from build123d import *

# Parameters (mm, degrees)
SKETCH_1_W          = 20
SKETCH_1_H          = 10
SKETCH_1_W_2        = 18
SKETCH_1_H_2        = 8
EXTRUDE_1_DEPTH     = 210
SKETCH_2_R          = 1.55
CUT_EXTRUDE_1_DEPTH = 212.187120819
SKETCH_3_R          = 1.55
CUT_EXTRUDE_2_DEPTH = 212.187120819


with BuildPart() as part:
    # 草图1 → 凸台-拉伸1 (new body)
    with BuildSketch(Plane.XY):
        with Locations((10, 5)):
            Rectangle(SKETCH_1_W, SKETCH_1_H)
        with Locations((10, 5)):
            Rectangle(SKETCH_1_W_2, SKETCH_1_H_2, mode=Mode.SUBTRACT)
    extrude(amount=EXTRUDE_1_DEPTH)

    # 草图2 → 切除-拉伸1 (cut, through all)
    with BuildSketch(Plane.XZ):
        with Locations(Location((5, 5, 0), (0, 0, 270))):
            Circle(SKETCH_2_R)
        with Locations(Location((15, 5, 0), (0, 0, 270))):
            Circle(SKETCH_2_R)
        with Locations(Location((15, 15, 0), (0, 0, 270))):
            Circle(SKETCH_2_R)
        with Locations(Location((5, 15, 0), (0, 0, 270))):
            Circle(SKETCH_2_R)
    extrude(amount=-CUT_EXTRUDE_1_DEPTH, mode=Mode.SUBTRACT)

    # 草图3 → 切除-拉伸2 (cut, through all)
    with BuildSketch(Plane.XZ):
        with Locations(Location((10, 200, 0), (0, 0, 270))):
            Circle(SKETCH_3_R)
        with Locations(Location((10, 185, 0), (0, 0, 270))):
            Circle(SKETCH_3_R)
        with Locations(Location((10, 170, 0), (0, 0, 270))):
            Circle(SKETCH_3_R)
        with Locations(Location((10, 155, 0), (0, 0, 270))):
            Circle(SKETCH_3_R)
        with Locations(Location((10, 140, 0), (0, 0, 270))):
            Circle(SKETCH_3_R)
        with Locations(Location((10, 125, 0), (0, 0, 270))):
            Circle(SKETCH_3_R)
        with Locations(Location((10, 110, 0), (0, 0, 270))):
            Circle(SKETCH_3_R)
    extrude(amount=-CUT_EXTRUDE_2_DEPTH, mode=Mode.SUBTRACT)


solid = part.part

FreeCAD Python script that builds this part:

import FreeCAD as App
import Part
import Sketcher

doc = App.newDocument("Part")
body = doc.addObject("PartDesign::Body", "Body")

# Sketch on XY plane
sketch1 = doc.addObject("Sketcher::SketchObject", "Sketch")
body.addObject(sketch1)
sketch1.AttachmentSupport = (doc.XY_Plane, [""])
sketch1.MapMode = "FlatFace"
sketch1.addGeometry(Part.LineSegment(App.Vector(0, 10, 0), App.Vector(0, 0, 0)), False)
sketch1.addGeometry(Part.LineSegment(App.Vector(0, 0, 0), App.Vector(20, 0, 0)), False)
sketch1.addGeometry(Part.LineSegment(App.Vector(20, 0, 0), App.Vector(20, 10, 0)), False)
sketch1.addGeometry(Part.LineSegment(App.Vector(20, 10, 0), App.Vector(0, 10, 0)), False)
sketch1.addGeometry(Part.LineSegment(App.Vector(19, 1, 0), App.Vector(1, 1, 0)), False)
sketch1.addGeometry(Part.LineSegment(App.Vector(1, 1, 0), App.Vector(1, 9, 0)), False)
sketch1.addGeometry(Part.LineSegment(App.Vector(1, 9, 0), App.Vector(19, 9, 0)), False)
sketch1.addGeometry(Part.LineSegment(App.Vector(19, 9, 0), App.Vector(19, 1, 0)), False)
sketch1.addConstraint(Sketcher.Constraint("Coincident", 0, 2, 1, 1))
sketch1.addConstraint(Sketcher.Constraint("Coincident", 1, 2, 2, 1))
sketch1.addConstraint(Sketcher.Constraint("Coincident", 2, 2, 3, 1))
sketch1.addConstraint(Sketcher.Constraint("Coincident", 3, 2, 0, 1))
sketch1.addConstraint(Sketcher.Constraint("Coincident", 4, 2, 5, 1))
sketch1.addConstraint(Sketcher.Constraint("Coincident", 5, 2, 6, 1))
sketch1.addConstraint(Sketcher.Constraint("Coincident", 6, 2, 7, 1))
sketch1.addConstraint(Sketcher.Constraint("Coincident", 7, 2, 4, 1))
sketch1.addConstraint(Sketcher.Constraint("Vertical", 0))
sketch1.addConstraint(Sketcher.Constraint("Horizontal", 1))
sketch1.addConstraint(Sketcher.Constraint("Vertical", 2))
sketch1.addConstraint(Sketcher.Constraint("Horizontal", 3))
sketch1.addConstraint(Sketcher.Constraint("Horizontal", 4))
sketch1.addConstraint(Sketcher.Constraint("Vertical", 5))
sketch1.addConstraint(Sketcher.Constraint("Horizontal", 6))
sketch1.addConstraint(Sketcher.Constraint("Vertical", 7))
sketch1.addConstraint(Sketcher.Constraint("Coincident", 0, 2, -1, 1))
sketch1.addConstraint(Sketcher.Constraint("DistanceX", 1, 1, 1, 2, 20.0))
sketch1.addConstraint(Sketcher.Constraint("DistanceX", 4, 2, 4, 1, 18.0))
sketch1.addConstraint(Sketcher.Constraint("DistanceY", 0, 2, 0, 1, 10.0))
sketch1.addConstraint(Sketcher.Constraint("DistanceY", 5, 1, 5, 2, 8.0))
sketch1.addConstraint(Sketcher.Constraint("DistanceX", -1, 1, 4, 2, 1.0))
sketch1.addConstraint(Sketcher.Constraint("DistanceY", -1, 1, 4, 2, 1.0))
pad1 = doc.addObject("PartDesign::Pad", "Pad")
body.addObject(pad1)
pad1.Profile = sketch1
pad1.Length = 210

# Sketch on XZ plane
sketch2 = doc.addObject("Sketcher::SketchObject", "Sketch001")
body.addObject(sketch2)
sketch2.AttachmentSupport = (doc.XZ_Plane, [""])
sketch2.MapMode = "FlatFace"
sketch2.addGeometry(Part.Circle(App.Vector(5, 5, 0), App.Vector(0, 0, 1), 1.6), False)
sketch2.addGeometry(Part.Circle(App.Vector(15, 5, 0), App.Vector(0, 0, 1), 1.6), False)
sketch2.addGeometry(Part.Circle(App.Vector(15, 15, 0), App.Vector(0, 0, 1), 1.6), False)
sketch2.addGeometry(Part.Circle(App.Vector(5, 15, 0), App.Vector(0, 0, 1), 1.6), False)
sketch2.addConstraint(Sketcher.Constraint("Equal", 0, 1))
sketch2.addConstraint(Sketcher.Constraint("Equal", 1, 2))
sketch2.addConstraint(Sketcher.Constraint("Equal", 2, 3))
sketch2.addConstraint(Sketcher.Constraint("Horizontal", 0, 3, 1, 3))
sketch2.addConstraint(Sketcher.Constraint("Horizontal", 2, 3, 3, 3))
sketch2.addConstraint(Sketcher.Constraint("Vertical", 1, 3, 2, 3))
sketch2.addConstraint(Sketcher.Constraint("Vertical", 0, 3, 3, 3))
sketch2.addConstraint(Sketcher.Constraint("Diameter", 0, 3.1))
sketch2.addConstraint(Sketcher.Constraint("DistanceX", -1, 1, 0, 3, 5.0))
sketch2.addConstraint(Sketcher.Constraint("DistanceY", -1, 1, 0, 3, 5.0))
sketch2.addConstraint(Sketcher.Constraint("DistanceX", -1, 1, 1, 3, 15.0))
sketch2.addConstraint(Sketcher.Constraint("DistanceY", -1, 1, 2, 3, 15.0))
pocket1 = doc.addObject("PartDesign::Pocket", "Pocket")
body.addObject(pocket1)
pocket1.Profile = sketch2
pocket1.Type = "ThroughAll"

# Sketch on XZ plane
sketch3 = doc.addObject("Sketcher::SketchObject", "Sketch002")
body.addObject(sketch3)
sketch3.AttachmentSupport = (doc.XZ_Plane, [""])
sketch3.MapMode = "FlatFace"
sketch3.addGeometry(Part.Circle(App.Vector(10, 200, 0), App.Vector(0, 0, 1), 1.6), False)
sketch3.addGeometry(Part.Circle(App.Vector(10, 185, 0), App.Vector(0, 0, 1), 1.6), False)
sketch3.addGeometry(Part.Circle(App.Vector(10, 170, 0), App.Vector(0, 0, 1), 1.6), False)
sketch3.addGeometry(Part.Circle(App.Vector(10, 155, 0), App.Vector(0, 0, 1), 1.6), False)
sketch3.addGeometry(Part.Circle(App.Vector(10, 140, 0), App.Vector(0, 0, 1), 1.6), False)
sketch3.addGeometry(Part.Circle(App.Vector(10, 125, 0), App.Vector(0, 0, 1), 1.6), False)
sketch3.addGeometry(Part.Circle(App.Vector(10, 110, 0), App.Vector(0, 0, 1), 1.6), False)
sketch3.addConstraint(Sketcher.Constraint("Equal", 0, 1))
sketch3.addConstraint(Sketcher.Constraint("Equal", 1, 2))
sketch3.addConstraint(Sketcher.Constraint("Equal", 2, 3))
sketch3.addConstraint(Sketcher.Constraint("Equal", 3, 4))
sketch3.addConstraint(Sketcher.Constraint("Equal", 4, 5))
sketch3.addConstraint(Sketcher.Constraint("Equal", 5, 6))
sketch3.addConstraint(Sketcher.Constraint("Vertical", 0, 3, 1, 3))
sketch3.addConstraint(Sketcher.Constraint("Vertical", 1, 3, 2, 3))
sketch3.addConstraint(Sketcher.Constraint("Vertical", 2, 3, 3, 3))
sketch3.addConstraint(Sketcher.Constraint("Vertical", 3, 3, 4, 3))
sketch3.addConstraint(Sketcher.Constraint("Vertical", 4, 3, 5, 3))
sketch3.addConstraint(Sketcher.Constraint("Vertical", 5, 3, 6, 3))
sketch3.addConstraint(Sketcher.Constraint("Diameter", 0, 3.1))
sketch3.addConstraint(Sketcher.Constraint("DistanceX", -1, 1, 0, 3, 10.0))
sketch3.addConstraint(Sketcher.Constraint("DistanceY", -1, 1, 0, 3, 200.0))
sketch3.addConstraint(Sketcher.Constraint("DistanceY", -1, 1, 1, 3, 185.0))
sketch3.addConstraint(Sketcher.Constraint("DistanceY", -1, 1, 2, 3, 170.0))
sketch3.addConstraint(Sketcher.Constraint("DistanceY", -1, 1, 3, 3, 155.0))
sketch3.addConstraint(Sketcher.Constraint("DistanceY", -1, 1, 4, 3, 140.0))
sketch3.addConstraint(Sketcher.Constraint("DistanceY", -1, 1, 5, 3, 125.0))
sketch3.addConstraint(Sketcher.Constraint("DistanceY", -1, 1, 6, 3, 110.0))
pocket2 = doc.addObject("PartDesign::Pocket", "Pocket001")
body.addObject(pocket2)
pocket2.Profile = sketch3
pocket2.Type = "ThroughAll"

doc.recompute()
